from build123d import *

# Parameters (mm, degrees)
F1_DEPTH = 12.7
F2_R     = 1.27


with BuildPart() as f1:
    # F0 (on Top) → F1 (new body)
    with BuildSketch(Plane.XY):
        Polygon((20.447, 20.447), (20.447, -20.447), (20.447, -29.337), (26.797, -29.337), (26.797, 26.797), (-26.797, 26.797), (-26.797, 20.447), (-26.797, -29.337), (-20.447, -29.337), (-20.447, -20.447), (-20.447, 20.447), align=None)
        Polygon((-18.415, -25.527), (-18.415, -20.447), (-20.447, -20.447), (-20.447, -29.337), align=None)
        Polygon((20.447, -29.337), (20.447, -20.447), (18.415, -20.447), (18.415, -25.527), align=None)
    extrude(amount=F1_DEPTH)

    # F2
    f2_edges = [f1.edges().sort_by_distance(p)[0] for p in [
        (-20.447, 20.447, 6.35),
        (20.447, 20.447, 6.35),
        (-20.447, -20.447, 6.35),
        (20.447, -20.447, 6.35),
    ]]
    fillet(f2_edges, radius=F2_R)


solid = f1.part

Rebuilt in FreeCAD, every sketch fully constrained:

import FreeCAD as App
import Part
import Sketcher
from FreeCAD import Vector
Q = App.Units.Quantity


def edges_at(feature, points):
    """Names of the edges that pass closest to the given points."""
    edges = feature.Shape.Edges
    near = lambda p: min(range(len(edges)), key=lambda i: edges[i].distToShape(Part.Vertex(*p))[0])
    return sorted({f"Edge{near(p) + 1}" for p in points})


def add_polygon(sketch, points):
    """Adds a closed chain of lines whose ends are joined by coincident constraints."""
    first, n = sketch.GeometryCount, len(points)
    for a, b in zip(points, points[1:] + points[:1]):
        sketch.addGeometry(Part.LineSegment(App.Vector(*a, 0), App.Vector(*b, 0)), False)
    for i in range(n):
        sketch.addConstraint(Sketcher.Constraint("Coincident", first + i, 2, first + (i + 1) % n, 1))

doc = App.newDocument("Part")
params = doc.addObject("Spreadsheet::Sheet", "Params")
for row, (alias, value) in enumerate([
    ("sketch1_height", "0.2 in"),
    ("sketch1_width", "0.08 in"),
    ("sketch1_width2", "0.25 in"),
    ("sketch1_width3", "2.11 in"),
    ("sketch1_height2", "2.21 in"),
    ("pad1_length", "0.5 in"),
    ("fillet_radius", "0.05 in"),
], start=1):
    params.set(f"A{row}", alias)
    params.set(f"B{row}", "=" + value)
    params.setAlias(f"B{row}", alias)

body = doc.addObject("PartDesign::Body", "Body")

# Sketch on XY plane
sketch1 = doc.addObject("Sketcher::SketchObject", "Sketch")
body.addObject(sketch1)
sketch1.AttachmentSupport = (doc.XY_Plane, [""])
sketch1.MapMode = "FlatFace"
add_polygon(sketch1, [(20.4, 20.4), (20.4, -20.4), (18.4, -20.4), (18.4, -25.5), (20.4, -29.3), (26.8, -29.3), (26.8, 26.8), (-26.8, 26.8), (-26.8, -29.3), (-20.4, -29.3), (-18.4, -25.5), (-18.4, -20.4), (-20.4, -20.4), (-20.4, 20.4)])  # lines 0-13
sketch1.addConstraint([
    Sketcher.Constraint("Vertical", 0),
    Sketcher.Constraint("Horizontal", 1),
    Sketcher.Constraint("Vertical", 2),
    Sketcher.Constraint("Horizontal", 4),
    Sketcher.Constraint("Vertical", 5),
    Sketcher.Constraint("Horizontal", 6),
    Sketcher.Constraint("Vertical", 7),
    Sketcher.Constraint("Horizontal", 8),
    Sketcher.Constraint("Vertical", 10),
    Sketcher.Constraint("Horizontal", 11),
    Sketcher.Constraint("Vertical", 12),
    Sketcher.Constraint("Horizontal", 13),
    Sketcher.Constraint("Symmetric", 0, 2, 12, 2, -1, 1),
    Sketcher.Constraint("Symmetric", 4, 2, 7, 2, -2),
    Sketcher.Constraint("Symmetric", 2, 2, 9, 2, -2),
    Sketcher.Constraint("Horizontal", 1, 2, 10, 2),
    Sketcher.Constraint("Vertical", 0, 2, 3, 2),
    Sketcher.Constraint("Vertical", 8, 2, 11, 2),
    Sketcher.Constraint("Equal", 13, 0),
    Sketcher.Constraint("DistanceY", 2, 2, 2, 1, Q("0.2 in")),
    Sketcher.Constraint("DistanceX", 1, 2, 1, 1, Q("0.08 in")),
    Sketcher.Constraint("DistanceX", 4, 1, 4, 2, Q("0.25 in")),
    Sketcher.Constraint("DistanceX", 6, 2, 6, 1, Q("2.11 in")),
    Sketcher.Constraint("DistanceY", 5, 1, 5, 2, Q("2.21 in")),
    Sketcher.Constraint("Distance", 3, Q("0.17 in")),
])
sketch1.setExpression("Constraints[33]", "Params.sketch1_height")
sketch1.setExpression("Constraints[34]", "Params.sketch1_width")
sketch1.setExpression("Constraints[35]", "Params.sketch1_width2")
sketch1.setExpression("Constraints[36]", "Params.sketch1_width3")
sketch1.setExpression("Constraints[37]", "Params.sketch1_height2")
pad1 = doc.addObject("PartDesign::Pad", "Pad")
body.addObject(pad1)
pad1.Profile = sketch1
pad1.setExpression("Length", "Params.pad1_length")
doc.recompute()

fillet = doc.addObject("PartDesign::Fillet", "Fillet")
body.addObject(fillet)
fillet.Base = (pad1, edges_at(pad1, [
    (-20.447, 20.447, 6.35),
    (20.447, 20.447, 6.35),
    (-20.447, -20.447, 6.35),
    (20.447, -20.447, 6.35),
]))
fillet.setExpression("Radius", "Params.fillet_radius")

doc.recompute()
